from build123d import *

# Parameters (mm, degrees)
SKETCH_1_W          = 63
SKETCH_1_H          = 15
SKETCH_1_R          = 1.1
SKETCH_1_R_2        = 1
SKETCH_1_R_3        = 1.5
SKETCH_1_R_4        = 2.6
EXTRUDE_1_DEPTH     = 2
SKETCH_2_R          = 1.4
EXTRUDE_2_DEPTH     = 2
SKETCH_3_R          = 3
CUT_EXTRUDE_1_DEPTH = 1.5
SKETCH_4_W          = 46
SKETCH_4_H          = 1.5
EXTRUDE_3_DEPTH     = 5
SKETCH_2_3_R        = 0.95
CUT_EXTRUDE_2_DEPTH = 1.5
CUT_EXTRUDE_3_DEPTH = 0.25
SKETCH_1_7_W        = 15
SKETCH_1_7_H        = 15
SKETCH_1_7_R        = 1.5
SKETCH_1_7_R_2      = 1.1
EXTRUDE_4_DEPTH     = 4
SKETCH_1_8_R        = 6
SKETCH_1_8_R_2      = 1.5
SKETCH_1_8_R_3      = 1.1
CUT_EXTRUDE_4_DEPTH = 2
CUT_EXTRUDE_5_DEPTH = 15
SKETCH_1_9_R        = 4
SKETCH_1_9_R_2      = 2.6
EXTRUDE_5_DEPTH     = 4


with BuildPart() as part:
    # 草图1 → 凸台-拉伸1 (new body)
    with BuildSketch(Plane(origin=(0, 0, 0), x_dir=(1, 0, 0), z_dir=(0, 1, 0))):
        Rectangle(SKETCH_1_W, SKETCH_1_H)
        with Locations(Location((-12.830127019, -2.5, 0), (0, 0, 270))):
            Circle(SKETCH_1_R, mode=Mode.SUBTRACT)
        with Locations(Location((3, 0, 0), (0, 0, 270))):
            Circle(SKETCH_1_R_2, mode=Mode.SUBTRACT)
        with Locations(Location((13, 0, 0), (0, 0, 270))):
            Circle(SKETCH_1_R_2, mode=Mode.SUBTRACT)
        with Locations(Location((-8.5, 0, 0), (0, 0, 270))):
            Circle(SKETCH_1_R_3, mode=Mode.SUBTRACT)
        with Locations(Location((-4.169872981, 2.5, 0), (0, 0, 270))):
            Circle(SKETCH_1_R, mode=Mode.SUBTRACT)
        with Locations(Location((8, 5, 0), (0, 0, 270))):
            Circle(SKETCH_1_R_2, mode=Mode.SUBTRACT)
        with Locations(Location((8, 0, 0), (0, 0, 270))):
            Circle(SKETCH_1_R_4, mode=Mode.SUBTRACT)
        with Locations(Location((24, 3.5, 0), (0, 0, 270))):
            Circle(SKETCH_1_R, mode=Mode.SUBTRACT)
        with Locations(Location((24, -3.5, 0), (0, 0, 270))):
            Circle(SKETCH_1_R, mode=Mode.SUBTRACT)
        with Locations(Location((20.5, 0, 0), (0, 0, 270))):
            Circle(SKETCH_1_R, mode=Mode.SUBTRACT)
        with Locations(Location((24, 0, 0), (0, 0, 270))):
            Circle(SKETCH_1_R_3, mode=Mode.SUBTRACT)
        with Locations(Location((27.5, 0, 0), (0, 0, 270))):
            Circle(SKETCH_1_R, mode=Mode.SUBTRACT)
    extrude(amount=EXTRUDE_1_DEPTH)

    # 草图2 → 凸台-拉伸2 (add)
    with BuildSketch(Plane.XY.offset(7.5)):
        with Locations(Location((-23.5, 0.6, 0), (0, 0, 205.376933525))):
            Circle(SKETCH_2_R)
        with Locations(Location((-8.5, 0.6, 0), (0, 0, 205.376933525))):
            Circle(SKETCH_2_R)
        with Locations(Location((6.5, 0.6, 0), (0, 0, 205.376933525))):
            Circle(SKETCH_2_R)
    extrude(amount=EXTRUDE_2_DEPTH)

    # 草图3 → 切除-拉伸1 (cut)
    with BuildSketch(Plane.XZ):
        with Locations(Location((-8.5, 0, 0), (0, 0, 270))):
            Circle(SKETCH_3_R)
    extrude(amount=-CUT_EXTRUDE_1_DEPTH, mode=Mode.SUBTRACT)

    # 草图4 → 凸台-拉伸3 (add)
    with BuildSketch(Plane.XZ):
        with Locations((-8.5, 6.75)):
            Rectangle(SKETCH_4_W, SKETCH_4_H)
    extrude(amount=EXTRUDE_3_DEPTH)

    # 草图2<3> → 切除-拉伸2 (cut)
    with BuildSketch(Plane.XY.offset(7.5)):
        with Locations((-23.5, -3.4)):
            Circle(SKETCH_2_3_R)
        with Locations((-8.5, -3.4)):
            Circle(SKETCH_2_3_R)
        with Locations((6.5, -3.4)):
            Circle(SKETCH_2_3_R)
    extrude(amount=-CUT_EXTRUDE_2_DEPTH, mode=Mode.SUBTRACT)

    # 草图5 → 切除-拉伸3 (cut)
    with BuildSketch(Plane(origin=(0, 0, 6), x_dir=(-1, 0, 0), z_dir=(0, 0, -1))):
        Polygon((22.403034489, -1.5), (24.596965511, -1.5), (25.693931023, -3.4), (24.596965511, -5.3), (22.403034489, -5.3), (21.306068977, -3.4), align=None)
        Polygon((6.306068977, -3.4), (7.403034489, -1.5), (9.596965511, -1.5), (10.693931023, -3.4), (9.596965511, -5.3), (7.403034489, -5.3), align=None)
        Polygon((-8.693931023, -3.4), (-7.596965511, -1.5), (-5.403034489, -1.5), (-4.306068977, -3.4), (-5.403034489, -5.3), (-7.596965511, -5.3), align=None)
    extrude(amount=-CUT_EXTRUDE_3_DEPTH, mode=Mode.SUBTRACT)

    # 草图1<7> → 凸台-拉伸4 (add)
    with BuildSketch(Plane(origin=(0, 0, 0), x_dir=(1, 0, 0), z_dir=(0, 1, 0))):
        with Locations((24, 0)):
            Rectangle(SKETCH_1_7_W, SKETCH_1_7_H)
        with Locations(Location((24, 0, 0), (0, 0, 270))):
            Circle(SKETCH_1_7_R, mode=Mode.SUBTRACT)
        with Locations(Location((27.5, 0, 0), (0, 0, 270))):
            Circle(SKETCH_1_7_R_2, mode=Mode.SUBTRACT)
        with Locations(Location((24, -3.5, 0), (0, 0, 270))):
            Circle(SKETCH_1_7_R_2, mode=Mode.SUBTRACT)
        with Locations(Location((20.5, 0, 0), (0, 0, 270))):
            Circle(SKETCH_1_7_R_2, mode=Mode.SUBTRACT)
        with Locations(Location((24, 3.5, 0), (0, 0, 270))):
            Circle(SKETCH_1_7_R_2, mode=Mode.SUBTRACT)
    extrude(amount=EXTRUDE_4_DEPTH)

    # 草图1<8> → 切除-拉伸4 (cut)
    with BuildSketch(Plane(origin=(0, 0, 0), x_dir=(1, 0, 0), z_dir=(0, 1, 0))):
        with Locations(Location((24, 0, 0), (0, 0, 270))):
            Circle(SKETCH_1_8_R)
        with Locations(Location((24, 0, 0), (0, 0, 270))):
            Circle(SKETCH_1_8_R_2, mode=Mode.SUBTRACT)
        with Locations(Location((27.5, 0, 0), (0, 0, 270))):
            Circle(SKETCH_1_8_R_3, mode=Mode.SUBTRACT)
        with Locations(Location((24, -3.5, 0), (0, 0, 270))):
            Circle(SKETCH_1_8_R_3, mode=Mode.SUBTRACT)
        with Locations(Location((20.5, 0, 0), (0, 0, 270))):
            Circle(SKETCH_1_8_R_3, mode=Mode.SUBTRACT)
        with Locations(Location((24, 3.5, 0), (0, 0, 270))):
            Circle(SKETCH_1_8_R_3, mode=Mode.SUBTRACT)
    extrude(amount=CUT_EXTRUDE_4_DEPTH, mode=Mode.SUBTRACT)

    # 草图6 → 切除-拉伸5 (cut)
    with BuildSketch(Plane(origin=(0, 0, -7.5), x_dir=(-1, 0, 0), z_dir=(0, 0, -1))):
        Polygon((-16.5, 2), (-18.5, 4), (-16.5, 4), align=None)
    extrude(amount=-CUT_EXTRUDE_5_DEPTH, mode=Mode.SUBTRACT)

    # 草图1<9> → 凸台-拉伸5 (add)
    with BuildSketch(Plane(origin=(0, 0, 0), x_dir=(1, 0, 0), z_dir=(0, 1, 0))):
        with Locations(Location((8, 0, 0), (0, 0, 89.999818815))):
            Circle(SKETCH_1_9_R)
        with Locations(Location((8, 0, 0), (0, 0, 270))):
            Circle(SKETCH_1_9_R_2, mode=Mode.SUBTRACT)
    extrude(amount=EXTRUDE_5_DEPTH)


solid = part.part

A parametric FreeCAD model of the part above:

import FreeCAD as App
import Part
import Sketcher
from FreeCAD import Vector
Q = App.Units.Quantity

doc = App.newDocument("Part")
body = doc.addObject("PartDesign::Body", "Body")

sketch1 = body.newObject("Sketcher::SketchObject", "Sketch")
sketch1.AttachmentSupport = (doc.getObject("XZ_Plane"), [""])
sketch1.MapMode = "FlatFace"
sketch1.addGeometry([
    Part.LineSegment(Vector(-31.5, -7.5, 0), Vector(-31.5, 7.5, 0)),
    Part.LineSegment(Vector(-31.5, 7.5, 0), Vector(31.5, 7.5, 0)),
    Part.LineSegment(Vector(31.5, 7.5, 0), Vector(31.5, -7.5, 0)),
    Part.LineSegment(Vector(31.5, -7.5, 0), Vector(-31.5, -7.5, 0)),
    Part.Circle(Vector(-12.8, 2.5, 0), Vector(0, 0, 1), 1.1),
    Part.Circle(Vector(-8.5, 0, 0), Vector(0, 0, 1), 1.5),
    Part.Circle(Vector(3, 0, 0), Vector(0, 0, 1), 1),
    Part.Circle(Vector(24, 3.5, 0), Vector(0, 0, 1), 1.1),
    Part.Circle(Vector(8, 0, 0), Vector(0, 0, 1), 2.6),
    Part.Circle(Vector(13, 0, 0), Vector(0, 0, 1), 1),
    Part.Circle(Vector(20.5, 0, 0), Vector(0, 0, 1), 1.1),
    Part.Circle(Vector(24, 0, 0), Vector(0, 0, 1), 1.5),
    Part.Circle(Vector(27.5, 0, 0), Vector(0, 0, 1), 1.1),
    Part.Circle(Vector(-4.2, -2.5, 0), Vector(0, 0, 1), 1.1),
    Part.Circle(Vector(8, -5, 0), Vector(0, 0, 1), 1),
    Part.Circle(Vector(24, -3.5, 0), Vector(0, 0, 1), 1.1),
], False)
sketch1.addConstraint([
    Sketcher.Constraint("Coincident", 0, 2, 1, 1),
    Sketcher.Constraint("Coincident", 1, 2, 2, 1),
    Sketcher.Constraint("Coincident", 2, 2, 3, 1),
    Sketcher.Constraint("Coincident", 3, 2, 0, 1),
    Sketcher.Constraint("Vertical", 0),
    Sketcher.Constraint("Horizontal", 1),
    Sketcher.Constraint("Vertical", 2),
    Sketcher.Constraint("Horizontal", 3),
    Sketcher.Constraint("Equal", 4, 7),
    Sketcher.Constraint("Equal", 6, 9),
    Sketcher.Constraint("Equal", 7, 10),
    Sketcher.Constraint("Equal", 5, 11),
    Sketcher.Constraint("Equal", 10, 12),
    Sketcher.Constraint("Equal", 12, 13),
    Sketcher.Constraint("Equal", 9, 14),
    Sketcher.Constraint("Equal", 13, 15),
    Sketcher.Constraint("Symmetric", 0, 2, 2, 2, -1, 1),
    Sketcher.Constraint("Symmetric", 7, 3, 15, 3, -1),
    Sketcher.Constraint("PointOnObject", 5, 3, -1),
    Sketcher.Constraint("PointOnObject", 6, 3, -1),
    Sketcher.Constraint("PointOnObject", 8, 3, -1),
    Sketcher.Constraint("PointOnObject", 9, 3, -1),
    Sketcher.Constraint("PointOnObject", 10, 3, -1),
    Sketcher.Constraint("PointOnObject", 11, 3, -1),
    Sketcher.Constraint("PointOnObject", 12, 3, -1),
    Sketcher.Constraint("Vertical", 7, 3, 11, 3),
    Sketcher.Constraint("Vertical", 8, 3, 14, 3),
    Sketcher.Constraint("Diameter", 5, 3.0),
    Sketcher.Constraint("Diameter", 6, 2.0),
    Sketcher.Constraint("Diameter", 4, 2.2),
    Sketcher.Constraint("Diameter", 8, 5.2),
    Sketcher.Constraint("DistanceX", 1, 1, 1, 2, 63.0),
    Sketcher.Constraint("DistanceY", 0, 1, 0, 2, 15.0),
    Sketcher.Constraint("DistanceX", -1, 1, 6, 3, 3.0),
    Sketcher.Constraint("DistanceX", -1, 1, 7, 3, 24.0),
    Sketcher.Constraint("DistanceX", -1, 1, 8, 3, 8.0),
    Sketcher.Constraint("DistanceX", -1, 1, 9, 3, 13.0),
    Sketcher.Constraint("DistanceY", 14, 3, -1, 1, 5.0),
    Sketcher.Constraint("DistanceY", 4, 3, 7, 3, 1.0),
    Sketcher.Constraint("DistanceX", 5, 3, 10, 3, 29.0),
    Sketcher.Constraint("DistanceX", 10, 3, 12, 3, 7.0),
    Sketcher.Constraint("DistanceY", 13, 3, 4, 3, 5.0),
    Sketcher.Constraint("DistanceY", 15, 3, 7, 3, 7.0),
    Sketcher.Constraint("DistanceX", 0, 2, 5, 3, 23.0),
    Sketcher.Constraint("DistanceX", 4, 3, -1, 1, 12.830127),
    Sketcher.Constraint("DistanceX", 13, 3, -1, 1, 4.169873),
])
pad1 = body.newObject("PartDesign::Pad", "Pad")
pad1.Profile = sketch1
pad1.Length = 2
pad1.Reversed = True

sketch2 = body.newObject("Sketcher::SketchObject", "Sketch001")
sketch2.AttachmentSupport = (doc.getObject("XY_Plane"), [""])
sketch2.MapMode = "FlatFace"
sketch2.AttachmentOffset = App.Placement(Vector(0, 0, 7.5), App.Rotation())
sketch2.addGeometry([
    Part.Circle(Vector(-23.5, 0.6, 0), Vector(0, 0, 1), 1.4),
    Part.Circle(Vector(-8.5, 0.6, 0), Vector(0, 0, 1), 1.4),
    Part.Circle(Vector(6.5, 0.6, 0), Vector(0, 0, 1), 1.4),
], False)
sketch2.addConstraint([
    Sketcher.Constraint("Equal", 0, 1),
    Sketcher.Constraint("Equal", 1, 2),
    Sketcher.Constraint("Horizontal", 0, 3, 1, 3),
    Sketcher.Constraint("Horizontal", 1, 3, 2, 3),
    Sketcher.Constraint("Diameter", 0, 2.8),
    Sketcher.Constraint("DistanceX", 0, 3, 1, 3, 15.0),
    Sketcher.Constraint("DistanceX", 1, 3, 2, 3, 15.0),
    Sketcher.Constraint("DistanceX", 0, 3, -1, 1, 23.5),
    Sketcher.Constraint("DistanceY", -1, 1, 0, 3, 0.6),
])
pad2 = body.newObject("PartDesign::Pad", "Pad001")
pad2.Profile = sketch2
pad2.Length = 2

sketch3 = body.newObject("Sketcher::SketchObject", "Sketch002")
sketch3.AttachmentSupport = (doc.getObject("XZ_Plane"), [""])
sketch3.MapMode = "FlatFace"
sketch3.addGeometry(Part.Circle(Vector(-8.5, 0, 0), Vector(0, 0, 1), 3), False)
sketch3.addConstraint([
    Sketcher.Constraint("PointOnObject", 0, 3, -1),
    Sketcher.Constraint("Diameter", 0, 6.0),
    Sketcher.Constraint("DistanceX", 0, 3, -1, 1, 8.5),
])
pocket1 = body.newObject("PartDesign::Pocket", "Pocket")
pocket1.Profile = sketch3
pocket1.Length = 1.5

sketch4 = body.newObject("Sketcher::SketchObject", "Sketch003")
sketch4.AttachmentSupport = (doc.getObject("XZ_Plane"), [""])
sketch4.MapMode = "FlatFace"
sketch4.addGeometry([
    Part.LineSegment(Vector(-31.5, 7.5, 0), Vector(-31.5, 6, 0)),
    Part.LineSegment(Vector(-31.5, 6, 0), Vector(14.5, 6, 0)),
    Part.LineSegment(Vector(14.5, 6, 0), Vector(14.5, 7.5, 0)),
    Part.LineSegment(Vector(14.5, 7.5, 0), Vector(-31.5, 7.5, 0)),
], False)
sketch4.addConstraint([
    Sketcher.Constraint("Coincident", 0, 2, 1, 1),
    Sketcher.Constraint("Coincident", 1, 2, 2, 1),
    Sketcher.Constraint("Coincident", 2, 2, 3, 1),
    Sketcher.Constraint("Coincident", 3, 2, 0, 1),
    Sketcher.Constraint("Vertical", 0),
    Sketcher.Constraint("Horizontal", 1),
    Sketcher.Constraint("Vertical", 2),
    Sketcher.Constraint("Horizontal", 3),
    Sketcher.Constraint("DistanceX", 1, 1, 1, 2, 46.0),
    Sketcher.Constraint("DistanceY", 0, 2, 0, 1, 1.5),
    Sketcher.Constraint("DistanceY", -1, 1, 0, 2, 6.0),
    Sketcher.Constraint("DistanceX", 0, 2, -1, 1, 31.5),
])
pad3 = body.newObject("PartDesign::Pad", "Pad002")
pad3.Profile = sketch4
pad3.Length = 5

sketch5 = body.newObject("Sketcher::SketchObject", "Sketch004")
sketch5.AttachmentSupport = (doc.getObject("XY_Plane"), [""])
sketch5.MapMode = "FlatFace"
sketch5.AttachmentOffset = App.Placement(Vector(0, 0, 7.5), App.Rotation())
sketch5.addGeometry([
    Part.Circle(Vector(-23.5, -3.4, 0), Vector(0, 0, 1), 0.9),
    Part.Circle(Vector(-8.5, -3.4, 0), Vector(0, 0, 1), 0.9),
    Part.Circle(Vector(6.5, -3.4, 0), Vector(0, 0, 1), 0.9),
], False)
sketch5.addConstraint([
    Sketcher.Constraint("Equal", 0, 1),
    Sketcher.Constraint("Equal", 1, 2),
    Sketcher.Constraint("Horizontal", 0, 3, 1, 3),
    Sketcher.Constraint("Horizontal", 1, 3, 2, 3),
    Sketcher.Constraint("Diameter", 0, 1.9),
    Sketcher.Constraint("DistanceX", 0, 3, 1, 3, 15.0),
    Sketcher.Constraint("DistanceX", 1, 3, 2, 3, 15.0),
    Sketcher.Constraint("DistanceX", 0, 3, -1, 1, 23.5),
    Sketcher.Constraint("DistanceY", 0, 3, -1, 1, 3.4),
])
pocket2 = body.newObject("PartDesign::Pocket", "Pocket001")
pocket2.Profile = sketch5
pocket2.Length = 1.5

sketch6 = body.newObject("Sketcher::SketchObject", "Sketch005")
sketch6.AttachmentSupport = (doc.getObject("XY_Plane"), [""])
sketch6.MapMode = "FlatFace"
sketch6.AttachmentOffset = App.Placement(Vector(0, 0, 6), App.Rotation())
sketch6.addGeometry([
    Part.LineSegment(Vector(-24.6, -1.5, 0), Vector(-22.4, -1.5, 0)),
    Part.LineSegment(Vector(-22.4, -1.5, 0), Vector(-21.3, -3.4, 0)),
    Part.LineSegment(Vector(-21.3, -3.4, 0), Vector(-22.4, -5.3, 0)),
    Part.LineSegment(Vector(-22.4, -5.3, 0), Vector(-24.6, -5.3, 0)),
    Part.LineSegment(Vector(-24.6, -5.3, 0), Vector(-25.7, -3.4, 0)),
    Part.LineSegment(Vector(-25.7, -3.4, 0), Vector(-24.6, -1.5, 0)),
    Part.LineSegment(Vector(-7.4, -1.5, 0), Vector(-6.3, -3.4, 0)),
    Part.LineSegment(Vector(-6.3, -3.4, 0), Vector(-7.4, -5.3, 0)),
    Part.LineSegment(Vector(-7.4, -5.3, 0), Vector(-9.6, -5.3, 0)),
    Part.LineSegment(Vector(-9.6, -5.3, 0), Vector(-10.7, -3.4, 0)),
    Part.LineSegment(Vector(-10.7, -3.4, 0), Vector(-9.6, -1.5, 0)),
    Part.LineSegment(Vector(-9.6, -1.5, 0), Vector(-7.4, -1.5, 0)),
    Part.LineSegment(Vector(7.6, -1.5, 0), Vector(8.7, -3.4, 0)),
    Part.LineSegment(Vector(8.7, -3.4, 0), Vector(7.6, -5.3, 0)),
    Part.LineSegment(Vector(7.6, -5.3, 0), Vector(5.4, -5.3, 0)),
    Part.LineSegment(Vector(5.4, -5.3, 0), Vector(4.3, -3.4, 0)),
    Part.LineSegment(Vector(4.3, -3.4, 0), Vector(5.4, -1.5, 0)),
    Part.LineSegment(Vector(5.4, -1.5, 0), Vector(7.6, -1.5, 0)),
], False)
sketch6.addConstraint([
    Sketcher.Constraint("Coincident", 0, 2, 1, 1),
    Sketcher.Constraint("Coincident", 1, 2, 2, 1),
    Sketcher.Constraint("Coincident", 2, 2, 3, 1),
    Sketcher.Constraint("Coincident", 3, 2, 4, 1),
    Sketcher.Constraint("Coincident", 4, 2, 5, 1),
    Sketcher.Constraint("Coincident", 5, 2, 0, 1),
    Sketcher.Constraint("Coincident", 6, 2, 7, 1),
    Sketcher.Constraint("Coincident", 7, 2, 8, 1),
    Sketcher.Constraint("Coincident", 8, 2, 9, 1),
    Sketcher.Constraint("Coincident", 9, 2, 10, 1),
    Sketcher.Constraint("Coincident", 10, 2, 11, 1),
    Sketcher.Constraint("Coincident", 11, 2, 6, 1),
    Sketcher.Constraint("Coincident", 12, 2, 13, 1),
    Sketcher.Constraint("Coincident", 13, 2, 14, 1),
    Sketcher.Constraint("Coincident", 14, 2, 15, 1),
    Sketcher.Constraint("Coincident", 15, 2, 16, 1),
    Sketcher.Constraint("Coincident", 16, 2, 17, 1),
    Sketcher.Constraint("Coincident", 17, 2, 12, 1),
    Sketcher.Constraint("Horizontal", 0),
    Sketcher.Constraint("Horizontal", 3),
    Sketcher.Constraint("Horizontal", 8),
    Sketcher.Constraint("Horizontal", 11),
    Sketcher.Constraint("Horizontal", 14),
    Sketcher.Constraint("Horizontal", 17),
    Sketcher.Constraint("Parallel", 1, 4),
    Sketcher.Constraint("Parallel", 2, 5),
    Sketcher.Constraint("Parallel", 4, 6),
    Sketcher.Constraint("Parallel", 5, 7),
    Sketcher.Constraint("Parallel", 6, 9),
    Sketcher.Constraint("Parallel", 7, 10),
    Sketcher.Constraint("Parallel", 9, 12),
    Sketcher.Constraint("Parallel", 10, 13),
    Sketcher.Constraint("Parallel", 12, 15),
    Sketcher.Constraint("Parallel", 13, 16),
    Sketcher.Constraint("Horizontal", 1, 2, 4, 2),
    Sketcher.Constraint("Horizontal", 4, 2, 6, 2),
    Sketcher.Constraint("Horizontal", 3, 2, 7, 2),
    Sketcher.Constraint("Horizontal", 6, 2, 9, 2),
    Sketcher.Constraint("Horizontal", 5, 2, 10, 2),
    Sketcher.Constraint("Horizontal", 9, 2, 12, 2),
    Sketcher.Constraint("Horizontal", 8, 2, 13, 2),
    Sketcher.Constraint("Horizontal", 12, 2, 15, 2),
    Sketcher.Constraint("Horizontal", 11, 2, 16, 2),
    Sketcher.Constraint("Vertical", 0, 2, 2, 2),
    Sketcher.Constraint("Vertical", 3, 2, 5, 2),
    Sketcher.Constraint("Equal", 3, 8),
    Sketcher.Constraint("Equal", 11, 14),
    Sketcher.Constraint("Angle", 1, Q("-60 deg")),
    Sketcher.Constraint("DistanceX", 1, 2, 6, 2, 15.0),
    Sketcher.Constraint("DistanceX", 6, 2, 12, 2, 15.0),
    Sketcher.Constraint("DistanceY", 0, 2, -1, 1, 1.5),
    Sketcher.Constraint("DistanceY", 1, 2, -1, 1, 3.4),
    Sketcher.Constraint("DistanceX", 0, 1, 0, 2, 2.193931),
    Sketcher.Constraint("DistanceX", 1, 2, -1, 1, 21.306069),
])
pocket3 = body.newObject("PartDesign::Pocket", "Pocket002")
pocket3.Profile = sketch6
pocket3.Length = 0.25
pocket3.Reversed = True

sketch7 = body.newObject("Sketcher::SketchObject", "Sketch006")
sketch7.AttachmentSupport = (doc.getObject("XZ_Plane"), [""])
sketch7.MapMode = "FlatFace"
sketch7.addGeometry([
    Part.LineSegment(Vector(16.5, -7.5, 0), Vector(16.5, 7.5, 0)),
    Part.LineSegment(Vector(16.5, 7.5, 0), Vector(31.5, 7.5, 0)),
    Part.LineSegment(Vector(31.5, 7.5, 0), Vector(31.5, -7.5, 0)),
    Part.LineSegment(Vector(31.5, -7.5, 0), Vector(16.5, -7.5, 0)),
    Part.Circle(Vector(24, 3.5, 0), Vector(0, 0, 1), 1.1),
    Part.Circle(Vector(20.5, 0, 0), Vector(0, 0, 1), 1.1),
    Part.Circle(Vector(24, 0, 0), Vector(0, 0, 1), 1.5),
    Part.Circle(Vector(27.5, 0, 0), Vector(0, 0, 1), 1.1),
    Part.Circle(Vector(24, -3.5, 0), Vector(0, 0, 1), 1.1),
], False)
sketch7.addConstraint([
    Sketcher.Constraint("Coincident", 0, 2, 1, 1),
    Sketcher.Constraint("Coincident", 1, 2, 2, 1),
    Sketcher.Constraint("Coincident", 2, 2, 3, 1),
    Sketcher.Constraint("Coincident", 3, 2, 0, 1),
    Sketcher.Constraint("Vertical", 0),
    Sketcher.Constraint("Horizontal", 1),
    Sketcher.Constraint("Vertical", 2),
    Sketcher.Constraint("Horizontal", 3),
    Sketcher.Constraint("Equal", 4, 5),
    Sketcher.Constraint("Equal", 5, 7),
    Sketcher.Constraint("Equal", 7, 8),
    Sketcher.Constraint("Symmetric", 4, 3, 8, 3, -1),
    Sketcher.Constraint("PointOnObject", 5, 3, -1),
    Sketcher.Constraint("PointOnObject", 6, 3, -1),
    Sketcher.Constraint("PointOnObject", 7, 3, -1),
    Sketcher.Constraint("Vertical", 4, 3, 6, 3),
    Sketcher.Constraint("Equal", 3, 0),
    Sketcher.Constraint("Diameter", 6, 3.0),
    Sketcher.Constraint("Diameter", 4, 2.2),
    Sketcher.Constraint("DistanceX", 1, 1, 1, 2, 15.0),
    Sketcher.Constraint("DistanceX", -1, 1, 4, 3, 24.0),
    Sketcher.Constraint("DistanceX", 5, 3, 7, 3, 7.0),
    Sketcher.Constraint("DistanceY", 8, 3, 4, 3, 7.0),
    Sketcher.Constraint("DistanceY", 4, 3, 0, 2, 4.0),
    Sketcher.Constraint("DistanceX", 0, 2, 5, 3, 4.0),
    Sketcher.Constraint("DistanceX", -1, 1, 5, 3, 20.5),
])
pad4 = body.newObject("PartDesign::Pad", "Pad003")
pad4.Profile = sketch7
pad4.Length = 4
pad4.Reversed = True

sketch8 = body.newObject("Sketcher::SketchObject", "Sketch007")
sketch8.AttachmentSupport = (doc.getObject("XZ_Plane"), [""])
sketch8.MapMode = "FlatFace"
sketch8.addGeometry([
    Part.Circle(Vector(24, 0, 0), Vector(0, 0, 1), 6),
    Part.Circle(Vector(20.5, 0, 0), Vector(0, 0, 1), 1.1),
    Part.Circle(Vector(24, -3.5, 0), Vector(0, 0, 1), 1.1),
    Part.Circle(Vector(24, 0, 0), Vector(0, 0, 1), 1.5),
    Part.Circle(Vector(24, 3.5, 0), Vector(0, 0, 1), 1.1),
    Part.Circle(Vector(27.5, 0, 0), Vector(0, 0, 1), 1.1),
], False)
sketch8.addConstraint([
    Sketcher.Constraint("Coincident", 3, 3, 0, 3),
    Sketcher.Constraint("Equal", 1, 2),
    Sketcher.Constraint("Equal", 2, 4),
    Sketcher.Constraint("Equal", 4, 5),
    Sketcher.Constraint("Symmetric", 2, 3, 4, 3, -1),
    Sketcher.Constraint("PointOnObject", 0, 3, -1),
    Sketcher.Constraint("PointOnObject", 1, 3, -1),
    Sketcher.Constraint("PointOnObject", 5, 3, -1),
    Sketcher.Constraint("Vertical", 0, 3, 2, 3),
    Sketcher.Constraint("Diameter", 0, 12.0),
    Sketcher.Constraint("Diameter", 3, 3.0),
    Sketcher.Constraint("Diameter", 1, 2.2),
    Sketcher.Constraint("DistanceX", -1, 1, 0, 3, 24.0),
    Sketcher.Constraint("DistanceY", 2, 3, 4, 3, 7.0),
    Sketcher.Constraint("DistanceX", 1, 3, 5, 3, 7.0),
    Sketcher.Constraint("DistanceX", -1, 1, 1, 3, 20.5),
])
pocket4 = body.newObject("PartDesign::Pocket", "Pocket003")
pocket4.Profile = sketch8
pocket4.Length = 2

sketch9 = body.newObject("Sketcher::SketchObject", "Sketch008")
sketch9.AttachmentSupport = (doc.getObject("XY_Plane"), [""])
sketch9.MapMode = "FlatFace"
sketch9.AttachmentOffset = App.Placement(Vector(0, 0, -7.5), App.Rotation())
sketch9.addGeometry([
    Part.LineSegment(Vector(18.5, 4, 0), Vector(16.5, 2, 0)),
    Part.LineSegment(Vector(16.5, 2, 0), Vector(16.5, 4, 0)),
    Part.LineSegment(Vector(16.5, 4, 0), Vector(18.5, 4, 0)),
], False)
sketch9.addConstraint([
    Sketcher.Constraint("Coincident", 0, 2, 1, 1),
    Sketcher.Constraint("Coincident", 1, 2, 2, 1),
    Sketcher.Constraint("Coincident", 2, 2, 0, 1),
    Sketcher.Constraint("Vertical", 1),
    Sketcher.Constraint("Horizontal", 2),
    Sketcher.Constraint("Equal", 2, 1),
    Sketcher.Constraint("DistanceX", 2, 1, 2, 2, 2.0),
    Sketcher.Constraint("DistanceY", -1, 1, 0, 2, 2.0),
    Sketcher.Constraint("DistanceX", -1, 1, 0, 2, 16.5),
])
pocket5 = body.newObject("PartDesign::Pocket", "Pocket004")
pocket5.Profile = sketch9
pocket5.Length = 15
pocket5.Reversed = True

sketch10 = body.newObject("Sketcher::SketchObject", "Sketch009")
sketch10.AttachmentSupport = (doc.getObject("XZ_Plane"), [""])
sketch10.MapMode = "FlatFace"
sketch10.addGeometry([
    Part.Circle(Vector(8, 0, 0), Vector(0, 0, 1), 4),
    Part.Circle(Vector(8, 0, 0), Vector(0, 0, 1), 2.6),
], False)
sketch10.addConstraint([
    Sketcher.Constraint("Coincident", 1, 3, 0, 3),
    Sketcher.Constraint("PointOnObject", 0, 3, -1),
    Sketcher.Constraint("Diameter", 0, 8.0),
    Sketcher.Constraint("Diameter", 1, 5.2),
    Sketcher.Constraint("DistanceX", -1, 1, 0, 3, 8.0),
])
pad5 = body.newObject("PartDesign::Pad", "Pad004")
pad5.Profile = sketch10
pad5.Length = 4
pad5.Reversed = True

doc.recompute()
